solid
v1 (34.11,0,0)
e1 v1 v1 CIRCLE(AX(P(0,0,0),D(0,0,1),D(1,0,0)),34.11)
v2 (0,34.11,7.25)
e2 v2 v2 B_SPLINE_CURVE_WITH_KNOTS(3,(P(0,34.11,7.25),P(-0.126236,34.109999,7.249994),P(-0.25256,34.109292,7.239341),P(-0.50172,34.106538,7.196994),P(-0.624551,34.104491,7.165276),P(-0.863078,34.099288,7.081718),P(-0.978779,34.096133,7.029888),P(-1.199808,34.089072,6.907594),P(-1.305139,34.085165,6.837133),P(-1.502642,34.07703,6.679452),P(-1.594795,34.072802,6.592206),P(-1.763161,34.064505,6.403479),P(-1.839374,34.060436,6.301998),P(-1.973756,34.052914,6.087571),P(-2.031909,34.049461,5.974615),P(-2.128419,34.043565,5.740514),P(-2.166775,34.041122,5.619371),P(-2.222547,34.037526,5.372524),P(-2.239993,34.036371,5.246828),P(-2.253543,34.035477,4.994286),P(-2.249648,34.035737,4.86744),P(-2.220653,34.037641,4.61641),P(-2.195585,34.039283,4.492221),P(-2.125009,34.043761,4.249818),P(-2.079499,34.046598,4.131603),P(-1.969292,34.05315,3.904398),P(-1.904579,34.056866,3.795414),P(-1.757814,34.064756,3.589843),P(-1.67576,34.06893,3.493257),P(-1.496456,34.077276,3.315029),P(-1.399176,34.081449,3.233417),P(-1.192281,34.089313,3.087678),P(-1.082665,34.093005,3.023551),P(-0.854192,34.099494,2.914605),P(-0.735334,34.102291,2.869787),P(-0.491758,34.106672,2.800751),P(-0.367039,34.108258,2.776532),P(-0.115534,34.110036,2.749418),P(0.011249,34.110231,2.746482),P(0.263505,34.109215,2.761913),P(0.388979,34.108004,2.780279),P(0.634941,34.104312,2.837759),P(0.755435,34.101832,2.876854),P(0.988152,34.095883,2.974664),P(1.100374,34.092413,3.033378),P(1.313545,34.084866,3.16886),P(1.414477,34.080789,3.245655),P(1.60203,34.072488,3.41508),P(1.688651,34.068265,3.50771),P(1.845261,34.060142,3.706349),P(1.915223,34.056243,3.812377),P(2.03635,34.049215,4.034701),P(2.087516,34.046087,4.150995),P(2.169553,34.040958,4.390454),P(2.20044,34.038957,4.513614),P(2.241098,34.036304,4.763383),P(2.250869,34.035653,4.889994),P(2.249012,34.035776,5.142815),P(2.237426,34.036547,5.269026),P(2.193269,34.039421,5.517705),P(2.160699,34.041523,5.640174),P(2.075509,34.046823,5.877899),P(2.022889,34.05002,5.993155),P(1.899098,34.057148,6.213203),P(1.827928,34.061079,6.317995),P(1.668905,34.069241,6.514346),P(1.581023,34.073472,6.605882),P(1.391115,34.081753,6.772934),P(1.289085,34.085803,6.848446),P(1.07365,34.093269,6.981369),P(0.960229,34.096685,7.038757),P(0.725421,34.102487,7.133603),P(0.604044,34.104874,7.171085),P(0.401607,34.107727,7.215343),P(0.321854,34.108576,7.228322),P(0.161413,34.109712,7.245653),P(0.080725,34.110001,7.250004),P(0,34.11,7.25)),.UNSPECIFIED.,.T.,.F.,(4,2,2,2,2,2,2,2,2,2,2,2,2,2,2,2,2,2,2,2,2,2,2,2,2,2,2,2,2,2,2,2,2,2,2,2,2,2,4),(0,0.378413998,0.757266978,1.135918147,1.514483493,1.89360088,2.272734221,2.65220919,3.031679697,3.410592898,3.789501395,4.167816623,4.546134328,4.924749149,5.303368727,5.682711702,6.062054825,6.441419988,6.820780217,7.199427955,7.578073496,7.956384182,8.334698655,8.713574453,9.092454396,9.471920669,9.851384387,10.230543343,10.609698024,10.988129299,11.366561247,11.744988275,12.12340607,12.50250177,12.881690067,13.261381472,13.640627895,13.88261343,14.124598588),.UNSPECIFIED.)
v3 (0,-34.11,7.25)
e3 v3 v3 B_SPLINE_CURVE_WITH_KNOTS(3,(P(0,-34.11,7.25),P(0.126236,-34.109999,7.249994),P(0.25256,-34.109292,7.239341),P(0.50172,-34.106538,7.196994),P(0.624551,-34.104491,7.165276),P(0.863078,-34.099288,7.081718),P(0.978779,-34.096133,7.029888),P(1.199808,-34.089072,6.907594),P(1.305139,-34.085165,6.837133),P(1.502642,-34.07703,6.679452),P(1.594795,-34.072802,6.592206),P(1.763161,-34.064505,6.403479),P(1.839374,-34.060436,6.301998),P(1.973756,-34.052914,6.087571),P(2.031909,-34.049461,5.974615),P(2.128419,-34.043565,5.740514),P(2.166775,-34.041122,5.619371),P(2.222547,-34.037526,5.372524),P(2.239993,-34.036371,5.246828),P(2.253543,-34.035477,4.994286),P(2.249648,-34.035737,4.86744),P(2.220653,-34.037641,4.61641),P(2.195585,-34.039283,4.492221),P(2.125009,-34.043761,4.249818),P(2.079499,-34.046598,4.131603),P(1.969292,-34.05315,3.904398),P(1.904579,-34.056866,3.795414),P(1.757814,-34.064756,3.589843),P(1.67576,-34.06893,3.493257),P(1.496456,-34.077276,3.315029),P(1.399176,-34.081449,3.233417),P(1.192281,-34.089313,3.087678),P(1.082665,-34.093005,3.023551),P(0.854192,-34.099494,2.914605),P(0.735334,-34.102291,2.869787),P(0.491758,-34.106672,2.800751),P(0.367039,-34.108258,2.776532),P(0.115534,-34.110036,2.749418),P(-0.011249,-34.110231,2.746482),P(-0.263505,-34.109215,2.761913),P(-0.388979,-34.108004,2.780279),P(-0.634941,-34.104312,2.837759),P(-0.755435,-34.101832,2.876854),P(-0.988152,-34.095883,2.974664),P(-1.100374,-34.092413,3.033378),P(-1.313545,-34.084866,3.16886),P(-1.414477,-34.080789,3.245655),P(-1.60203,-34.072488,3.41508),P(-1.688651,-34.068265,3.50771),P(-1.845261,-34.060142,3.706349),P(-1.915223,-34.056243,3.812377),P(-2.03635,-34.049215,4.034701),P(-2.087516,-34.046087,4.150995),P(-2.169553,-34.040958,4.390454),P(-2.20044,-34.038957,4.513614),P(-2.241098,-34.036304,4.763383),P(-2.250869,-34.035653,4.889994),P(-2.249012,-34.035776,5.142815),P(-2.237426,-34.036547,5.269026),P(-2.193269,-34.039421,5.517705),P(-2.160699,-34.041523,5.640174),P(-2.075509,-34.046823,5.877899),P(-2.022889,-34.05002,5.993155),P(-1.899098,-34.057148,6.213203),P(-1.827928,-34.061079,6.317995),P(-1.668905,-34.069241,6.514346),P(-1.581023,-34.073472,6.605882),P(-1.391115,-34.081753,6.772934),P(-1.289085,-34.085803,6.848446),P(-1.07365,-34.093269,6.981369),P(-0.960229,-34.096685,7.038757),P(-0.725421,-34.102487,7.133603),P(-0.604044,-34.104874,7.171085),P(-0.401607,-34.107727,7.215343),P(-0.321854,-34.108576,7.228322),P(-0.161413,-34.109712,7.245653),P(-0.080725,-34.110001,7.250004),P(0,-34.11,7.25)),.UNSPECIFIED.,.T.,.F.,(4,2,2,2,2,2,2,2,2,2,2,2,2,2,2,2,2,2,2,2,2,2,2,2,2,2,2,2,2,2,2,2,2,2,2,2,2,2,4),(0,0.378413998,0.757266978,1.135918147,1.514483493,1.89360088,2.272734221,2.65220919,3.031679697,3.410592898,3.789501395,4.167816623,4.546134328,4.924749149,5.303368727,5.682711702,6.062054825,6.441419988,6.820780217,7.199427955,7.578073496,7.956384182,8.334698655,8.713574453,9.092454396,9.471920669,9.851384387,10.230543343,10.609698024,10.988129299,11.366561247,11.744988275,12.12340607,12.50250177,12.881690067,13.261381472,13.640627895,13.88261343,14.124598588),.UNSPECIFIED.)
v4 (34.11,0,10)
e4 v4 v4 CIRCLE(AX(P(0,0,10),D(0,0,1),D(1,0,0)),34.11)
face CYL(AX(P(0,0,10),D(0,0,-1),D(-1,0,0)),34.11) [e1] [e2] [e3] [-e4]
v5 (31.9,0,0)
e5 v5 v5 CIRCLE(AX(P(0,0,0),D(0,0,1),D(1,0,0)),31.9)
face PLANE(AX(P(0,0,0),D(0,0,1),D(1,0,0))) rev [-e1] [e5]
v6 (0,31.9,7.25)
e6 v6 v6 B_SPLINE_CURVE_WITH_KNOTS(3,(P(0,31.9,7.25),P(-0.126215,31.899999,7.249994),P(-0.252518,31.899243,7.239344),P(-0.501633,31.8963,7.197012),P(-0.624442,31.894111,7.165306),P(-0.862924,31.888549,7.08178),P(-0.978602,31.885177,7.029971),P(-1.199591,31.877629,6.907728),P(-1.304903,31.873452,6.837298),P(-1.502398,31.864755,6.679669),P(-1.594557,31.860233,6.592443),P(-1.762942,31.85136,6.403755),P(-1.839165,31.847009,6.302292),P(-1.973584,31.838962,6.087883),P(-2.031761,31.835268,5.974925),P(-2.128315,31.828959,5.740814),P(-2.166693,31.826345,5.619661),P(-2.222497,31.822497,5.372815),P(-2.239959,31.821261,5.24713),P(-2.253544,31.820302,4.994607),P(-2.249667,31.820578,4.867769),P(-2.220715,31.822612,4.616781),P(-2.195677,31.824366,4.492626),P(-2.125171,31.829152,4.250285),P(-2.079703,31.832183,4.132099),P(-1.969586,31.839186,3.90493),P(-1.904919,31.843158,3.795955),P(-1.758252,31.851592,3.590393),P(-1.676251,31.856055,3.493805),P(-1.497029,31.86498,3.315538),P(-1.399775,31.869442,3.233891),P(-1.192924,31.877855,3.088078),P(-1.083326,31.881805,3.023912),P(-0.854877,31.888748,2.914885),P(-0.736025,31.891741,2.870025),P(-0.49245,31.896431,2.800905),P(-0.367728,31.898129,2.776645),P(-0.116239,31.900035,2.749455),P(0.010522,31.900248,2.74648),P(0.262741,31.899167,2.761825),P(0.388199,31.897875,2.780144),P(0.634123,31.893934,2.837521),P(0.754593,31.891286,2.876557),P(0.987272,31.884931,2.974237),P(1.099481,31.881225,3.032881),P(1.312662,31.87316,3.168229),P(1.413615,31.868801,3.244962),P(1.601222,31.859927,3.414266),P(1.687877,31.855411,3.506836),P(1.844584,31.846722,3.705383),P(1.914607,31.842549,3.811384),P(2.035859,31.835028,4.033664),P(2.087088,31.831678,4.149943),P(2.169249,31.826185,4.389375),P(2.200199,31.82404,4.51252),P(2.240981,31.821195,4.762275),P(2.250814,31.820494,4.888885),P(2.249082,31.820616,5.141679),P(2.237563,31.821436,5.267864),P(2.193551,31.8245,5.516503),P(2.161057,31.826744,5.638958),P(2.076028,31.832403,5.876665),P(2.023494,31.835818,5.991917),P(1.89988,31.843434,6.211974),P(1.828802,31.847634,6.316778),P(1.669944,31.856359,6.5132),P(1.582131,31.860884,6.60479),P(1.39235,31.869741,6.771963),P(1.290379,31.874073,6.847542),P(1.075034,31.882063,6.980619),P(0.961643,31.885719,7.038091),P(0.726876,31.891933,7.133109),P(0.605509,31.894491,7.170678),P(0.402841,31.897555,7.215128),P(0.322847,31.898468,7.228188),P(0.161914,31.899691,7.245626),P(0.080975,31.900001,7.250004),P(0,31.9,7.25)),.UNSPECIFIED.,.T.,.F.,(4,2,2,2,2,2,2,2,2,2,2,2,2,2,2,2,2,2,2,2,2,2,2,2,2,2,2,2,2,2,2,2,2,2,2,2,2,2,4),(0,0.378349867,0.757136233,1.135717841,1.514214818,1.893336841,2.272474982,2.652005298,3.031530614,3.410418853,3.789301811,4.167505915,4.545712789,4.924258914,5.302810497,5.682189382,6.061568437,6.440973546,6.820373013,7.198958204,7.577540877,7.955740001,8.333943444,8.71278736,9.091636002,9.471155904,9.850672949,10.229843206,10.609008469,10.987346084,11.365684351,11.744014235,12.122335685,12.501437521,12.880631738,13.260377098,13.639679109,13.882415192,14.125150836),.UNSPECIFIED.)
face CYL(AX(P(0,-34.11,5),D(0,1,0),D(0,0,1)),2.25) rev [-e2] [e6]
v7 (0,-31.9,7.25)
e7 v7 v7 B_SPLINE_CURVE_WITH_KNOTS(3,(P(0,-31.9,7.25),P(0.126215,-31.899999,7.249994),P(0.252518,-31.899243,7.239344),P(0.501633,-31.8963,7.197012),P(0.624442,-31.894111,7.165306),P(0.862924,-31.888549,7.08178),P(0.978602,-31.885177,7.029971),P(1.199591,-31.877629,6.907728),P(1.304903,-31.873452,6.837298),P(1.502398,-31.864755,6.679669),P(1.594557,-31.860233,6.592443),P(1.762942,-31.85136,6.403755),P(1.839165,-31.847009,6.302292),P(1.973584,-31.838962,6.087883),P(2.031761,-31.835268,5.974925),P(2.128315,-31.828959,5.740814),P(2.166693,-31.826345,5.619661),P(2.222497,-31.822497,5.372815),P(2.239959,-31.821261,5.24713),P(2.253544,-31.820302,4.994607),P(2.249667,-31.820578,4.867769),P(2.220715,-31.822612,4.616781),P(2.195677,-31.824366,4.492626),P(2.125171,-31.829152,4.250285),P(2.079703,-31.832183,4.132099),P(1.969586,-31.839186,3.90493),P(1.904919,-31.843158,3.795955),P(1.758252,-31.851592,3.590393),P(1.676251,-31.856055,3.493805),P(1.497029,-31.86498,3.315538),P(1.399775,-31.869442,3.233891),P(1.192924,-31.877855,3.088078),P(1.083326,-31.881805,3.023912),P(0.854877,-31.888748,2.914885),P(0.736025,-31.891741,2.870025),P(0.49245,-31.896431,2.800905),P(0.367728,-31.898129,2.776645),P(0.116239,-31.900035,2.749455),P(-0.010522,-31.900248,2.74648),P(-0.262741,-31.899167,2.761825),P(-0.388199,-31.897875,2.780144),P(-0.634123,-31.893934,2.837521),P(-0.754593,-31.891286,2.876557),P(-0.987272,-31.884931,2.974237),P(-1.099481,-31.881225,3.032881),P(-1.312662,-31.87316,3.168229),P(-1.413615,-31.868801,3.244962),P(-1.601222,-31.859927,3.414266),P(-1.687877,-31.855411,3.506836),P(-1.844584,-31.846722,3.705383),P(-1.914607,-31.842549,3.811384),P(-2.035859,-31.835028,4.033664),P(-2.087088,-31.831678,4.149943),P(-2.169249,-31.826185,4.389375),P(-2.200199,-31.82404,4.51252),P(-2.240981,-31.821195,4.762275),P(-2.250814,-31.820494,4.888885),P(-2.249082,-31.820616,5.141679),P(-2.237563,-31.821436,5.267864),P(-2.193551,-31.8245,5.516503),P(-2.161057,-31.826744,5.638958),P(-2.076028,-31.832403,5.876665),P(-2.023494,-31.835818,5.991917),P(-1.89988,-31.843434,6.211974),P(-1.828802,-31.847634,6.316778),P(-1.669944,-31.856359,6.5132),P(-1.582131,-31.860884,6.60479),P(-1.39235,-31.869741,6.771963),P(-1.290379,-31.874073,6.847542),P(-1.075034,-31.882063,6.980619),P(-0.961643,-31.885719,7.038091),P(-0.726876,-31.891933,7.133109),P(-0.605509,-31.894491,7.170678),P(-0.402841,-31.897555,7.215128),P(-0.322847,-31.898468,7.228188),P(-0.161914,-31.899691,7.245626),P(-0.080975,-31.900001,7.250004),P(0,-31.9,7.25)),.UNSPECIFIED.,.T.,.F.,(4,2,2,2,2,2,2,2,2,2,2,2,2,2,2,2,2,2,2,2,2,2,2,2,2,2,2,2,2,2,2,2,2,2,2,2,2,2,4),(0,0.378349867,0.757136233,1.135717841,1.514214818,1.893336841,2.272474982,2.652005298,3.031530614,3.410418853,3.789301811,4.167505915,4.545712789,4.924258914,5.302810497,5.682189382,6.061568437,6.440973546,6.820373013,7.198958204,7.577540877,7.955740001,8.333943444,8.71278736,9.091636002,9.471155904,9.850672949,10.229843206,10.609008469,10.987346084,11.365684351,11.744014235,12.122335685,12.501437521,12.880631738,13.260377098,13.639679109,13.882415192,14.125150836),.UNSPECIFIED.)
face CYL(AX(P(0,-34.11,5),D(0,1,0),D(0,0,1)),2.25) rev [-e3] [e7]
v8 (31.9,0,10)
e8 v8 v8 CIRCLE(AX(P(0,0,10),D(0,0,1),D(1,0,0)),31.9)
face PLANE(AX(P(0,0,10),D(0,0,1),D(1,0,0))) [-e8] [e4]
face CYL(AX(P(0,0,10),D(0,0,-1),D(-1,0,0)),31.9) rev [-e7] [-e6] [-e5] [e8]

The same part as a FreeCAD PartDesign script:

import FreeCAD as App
import Part
import Sketcher
from FreeCAD import Vector
Q = App.Units.Quantity

doc = App.newDocument("Part")
body = doc.addObject("PartDesign::Body", "Body")

sketch1 = body.newObject("Sketcher::SketchObject", "Sketch")
sketch1.AttachmentSupport = (doc.getObject("XY_Plane"), [""])
sketch1.MapMode = "FlatFace"
sketch1.addGeometry([
    Part.Circle(Vector(0, 0, 0), Vector(0, 0, 1), 34.11),
    Part.Circle(Vector(0, 0, 0), Vector(0, 0, 1), 31.9),
], False)
sketch1.addConstraint([
    Sketcher.Constraint("Coincident", 0, 3, -1, 1),
    Sketcher.Constraint("Coincident", 1, 3, -1, 1),
    Sketcher.Constraint("Diameter", 1, Q("63.8 mm")),
    Sketcher.Constraint("Diameter", 0, Q("68.22 mm")),
])
pad1 = body.newObject("PartDesign::Pad", "Pad")
pad1.Profile = sketch1
pad1.Length = 10

sketch2 = body.newObject("Sketcher::SketchObject", "Sketch001")
sketch2.AttachmentSupport = (doc.getObject("XZ_Plane"), [""])
sketch2.MapMode = "FlatFace"
sketch2.AttachmentOffset = App.Placement(Vector(0, 0, -34.11), App.Rotation())
sketch2.addGeometry(Part.Circle(Vector(0, 5, 0), Vector(0, 0, 1), 2.25), False)
sketch2.addConstraint([
    Sketcher.Constraint("PointOnObject", 0, 3, -2),
    Sketcher.Constraint("Diameter", 0, Q("4.5 mm")),
    Sketcher.Constraint("DistanceY", -1, 1, 0, 3, Q("5 mm")),
])
pocket1 = body.newObject("PartDesign::Pocket", "Pocket")
pocket1.Profile = sketch2
pocket1.Type = "ThroughAll"
pocket1.Reversed = True

doc.recompute()
